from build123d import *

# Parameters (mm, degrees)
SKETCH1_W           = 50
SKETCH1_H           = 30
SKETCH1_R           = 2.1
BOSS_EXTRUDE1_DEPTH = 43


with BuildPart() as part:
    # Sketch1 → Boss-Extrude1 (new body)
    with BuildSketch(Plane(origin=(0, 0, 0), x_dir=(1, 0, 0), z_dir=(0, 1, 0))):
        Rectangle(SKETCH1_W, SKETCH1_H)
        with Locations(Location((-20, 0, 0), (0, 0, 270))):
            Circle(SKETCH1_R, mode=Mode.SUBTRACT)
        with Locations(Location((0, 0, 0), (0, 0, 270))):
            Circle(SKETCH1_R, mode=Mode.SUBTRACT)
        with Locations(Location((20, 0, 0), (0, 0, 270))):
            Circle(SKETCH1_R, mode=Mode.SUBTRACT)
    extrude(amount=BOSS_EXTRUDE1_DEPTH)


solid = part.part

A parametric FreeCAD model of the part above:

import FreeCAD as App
import Part
import Sketcher

V = App.Vector
Q = App.Units.Quantity


def add_polygon(sketch, points):
    """Adds a closed chain of lines whose ends are joined by coincident constraints."""
    first, n = sketch.GeometryCount, len(points)
    for a, b in zip(points, points[1:] + points[:1]):
        sketch.addGeometry(Part.LineSegment(App.Vector(*a, 0), App.Vector(*b, 0)), False)
    for i in range(n):
        sketch.addConstraint(Sketcher.Constraint("Coincident", first + i, 2, first + (i + 1) % n, 1))

doc = App.newDocument("Part")
body = doc.addObject("PartDesign::Body", "Body")

# Sketch on XZ plane
sketch1 = body.newObject("Sketcher::SketchObject", "Sketch")
sketch1.AttachmentSupport = (doc.getObject("XZ_Plane"), [""])
sketch1.MapMode = "FlatFace"
add_polygon(sketch1, [(-25, -15), (-25, 15), (25, 15), (25, -15)])  # lines 0-3
sketch1.addGeometry(Part.Circle(V(-20, 0, 0), V(0, 0, 1), 2.1), False)  # 4
sketch1.addGeometry(Part.Circle(V(0, 0, 0), V(0, 0, 1), 2.1), False)  # 5
sketch1.addGeometry(Part.Circle(V(20, 0, 0), V(0, 0, 1), 2.1), False)  # 6
sketch1.addConstraint(Sketcher.Constraint("Vertical", 0))
sketch1.addConstraint(Sketcher.Constraint("Horizontal", 1))
sketch1.addConstraint(Sketcher.Constraint("Vertical", 2))
sketch1.addConstraint(Sketcher.Constraint("Horizontal", 3))
sketch1.addConstraint(Sketcher.Constraint("Coincident", 5, 3, -1, 1))
sketch1.addConstraint(Sketcher.Constraint("Equal", 4, 5))
sketch1.addConstraint(Sketcher.Constraint("Equal", 5, 6))
sketch1.addConstraint(Sketcher.Constraint("Symmetric", 4, 3, 6, 3, -1, 1))
sketch1.addConstraint(Sketcher.Constraint("Symmetric", 0, 2, 2, 2, -1, 1))
sketch1.addConstraint(Sketcher.Constraint("PointOnObject", 4, 3, -1))
sketch1.addConstraint(Sketcher.Constraint("Diameter", 4, Q("4.2 mm")))
sketch1.addConstraint(Sketcher.Constraint("DistanceX", 1, 1, 1, 2, Q("50 mm")))
sketch1.addConstraint(Sketcher.Constraint("DistanceY", 0, 1, 0, 2, Q("30 mm")))
sketch1.addConstraint(Sketcher.Constraint("DistanceX", 4, 3, -1, 1, Q("20 mm")))
pad1 = body.newObject("PartDesign::Pad", "Pad")
pad1.Profile = sketch1
pad1.Length = 43
pad1.Reversed = True

doc.recompute()
